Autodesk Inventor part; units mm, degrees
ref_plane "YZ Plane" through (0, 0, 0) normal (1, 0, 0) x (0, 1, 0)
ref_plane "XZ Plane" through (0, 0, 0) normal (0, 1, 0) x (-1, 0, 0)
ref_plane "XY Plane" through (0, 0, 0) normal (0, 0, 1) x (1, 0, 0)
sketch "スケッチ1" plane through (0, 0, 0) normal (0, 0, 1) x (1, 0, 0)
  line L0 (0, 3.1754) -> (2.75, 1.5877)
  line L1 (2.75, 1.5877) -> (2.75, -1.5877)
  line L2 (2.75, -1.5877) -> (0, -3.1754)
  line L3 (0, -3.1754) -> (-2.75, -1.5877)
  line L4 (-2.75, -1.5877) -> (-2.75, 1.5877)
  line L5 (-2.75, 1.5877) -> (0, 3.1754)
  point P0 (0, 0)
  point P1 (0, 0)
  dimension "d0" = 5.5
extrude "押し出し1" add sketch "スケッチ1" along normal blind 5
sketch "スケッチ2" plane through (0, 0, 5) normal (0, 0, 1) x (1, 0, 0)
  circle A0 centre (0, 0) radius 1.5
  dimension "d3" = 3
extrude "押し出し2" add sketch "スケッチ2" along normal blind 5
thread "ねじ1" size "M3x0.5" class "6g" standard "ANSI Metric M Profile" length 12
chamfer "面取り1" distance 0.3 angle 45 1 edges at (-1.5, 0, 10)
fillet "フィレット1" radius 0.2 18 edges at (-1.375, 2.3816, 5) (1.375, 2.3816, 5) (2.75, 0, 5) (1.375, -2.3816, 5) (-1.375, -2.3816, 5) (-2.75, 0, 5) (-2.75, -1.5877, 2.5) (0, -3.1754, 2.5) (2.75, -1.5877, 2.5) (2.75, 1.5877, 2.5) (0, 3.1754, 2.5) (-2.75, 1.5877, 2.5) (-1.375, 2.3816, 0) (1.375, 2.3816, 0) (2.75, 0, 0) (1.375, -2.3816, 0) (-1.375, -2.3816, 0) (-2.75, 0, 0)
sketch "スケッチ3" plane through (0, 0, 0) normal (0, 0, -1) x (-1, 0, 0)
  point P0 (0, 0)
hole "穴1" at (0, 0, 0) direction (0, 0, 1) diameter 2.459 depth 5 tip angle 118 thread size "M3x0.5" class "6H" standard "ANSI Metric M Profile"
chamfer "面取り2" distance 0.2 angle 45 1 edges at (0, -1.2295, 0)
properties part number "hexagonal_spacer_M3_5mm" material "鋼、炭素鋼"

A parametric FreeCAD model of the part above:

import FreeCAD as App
import Part
import Sketcher

V = App.Vector
Q = App.Units.Quantity


def edges_at(feature, points):
    """Names of the edges that pass closest to the given points."""
    edges = feature.Shape.Edges
    near = lambda p: min(range(len(edges)), key=lambda i: edges[i].distToShape(Part.Vertex(*p))[0])
    return sorted({f"Edge{near(p) + 1}" for p in points})

doc = App.newDocument("Part")
body = doc.addObject("PartDesign::Body", "Body")

sketch1 = doc.addObject("Sketcher::SketchObject", "Sketch")
body.addObject(sketch1)
sketch1.AttachmentSupport = (doc.XY_Plane, [""])
sketch1.MapMode = "FlatFace"
sketch1.addGeometry([
    Part.LineSegment(V(2.8, 1.6, 0), V(0, 3.2, 0)),
    Part.LineSegment(V(0, 3.2, 0), V(-2.8, 1.6, 0)),
    Part.LineSegment(V(-2.8, 1.6, 0), V(-2.8, -1.6, 0)),
    Part.LineSegment(V(-2.8, -1.6, 0), V(0, -3.2, 0)),
    Part.LineSegment(V(0, -3.2, 0), V(2.8, -1.6, 0)),
    Part.LineSegment(V(2.8, -1.6, 0), V(2.8, 1.6, 0)),
], False)
sketch1.addConstraint([
    Sketcher.Constraint("Coincident", 0, 2, 1, 1),
    Sketcher.Constraint("Coincident", 1, 2, 2, 1),
    Sketcher.Constraint("Coincident", 2, 2, 3, 1),
    Sketcher.Constraint("Coincident", 3, 2, 4, 1),
    Sketcher.Constraint("Coincident", 4, 2, 5, 1),
    Sketcher.Constraint("Coincident", 5, 2, 0, 1),
    Sketcher.Constraint("Vertical", 2),
    Sketcher.Constraint("Vertical", 5),
    Sketcher.Constraint("Symmetric", 0, 2, 3, 2, -1, 1),
    Sketcher.Constraint("Symmetric", 1, 2, 4, 2, -1, 1),
    Sketcher.Constraint("PointOnObject", 0, 2, -2),
    Sketcher.Constraint("Parallel", 0, 3),
    Sketcher.Constraint("Horizontal", 2, 2, 4, 2),
    Sketcher.Constraint("DistanceX", 2, 2, 4, 2, Q("5.5 mm")),
    Sketcher.Constraint("Angle", 0, Q("150.0002 deg")),
    Sketcher.Constraint("DistanceY", 2, 2, 2, 1, Q("3.1754 mm")),
])
pad1 = doc.addObject("PartDesign::Pad", "Pad")
body.addObject(pad1)
pad1.Profile = sketch1
pad1.Length = 5

sketch2 = doc.addObject("Sketcher::SketchObject", "Sketch001")
body.addObject(sketch2)
sketch2.AttachmentSupport = (doc.XY_Plane, [""])
sketch2.MapMode = "FlatFace"
sketch2.AttachmentOffset = App.Placement(V(0, 0, 5), App.Rotation())
sketch2.addGeometry(Part.Circle(V(0, 0, 0), V(0, 0, 1), 1.5), False)
sketch2.addConstraint([
    Sketcher.Constraint("Coincident", 0, 3, -1, 1),
    Sketcher.Constraint("Diameter", 0, Q("3 mm")),
])
pad2 = doc.addObject("PartDesign::Pad", "Pad001")
body.addObject(pad2)
pad2.Profile = sketch2
pad2.Length = 5
doc.recompute()

chamfer = doc.addObject("PartDesign::Chamfer", "Chamfer")
body.addObject(chamfer)
chamfer.Base = (pad2, edges_at(pad2, [(-1.5, 0, 10)]))
chamfer.Size = 0.3
doc.recompute()

fillet = doc.addObject("PartDesign::Fillet", "Fillet")
body.addObject(fillet)
fillet.Base = (chamfer, edges_at(chamfer, [
    (-1.375, 2.382, 5),
    (1.375, 2.382, 5),
    (2.75, 0, 5),
    (1.375, -2.382, 5),
    (-1.375, -2.382, 5),
    (-2.75, 0, 5),
    (-2.75, -1.588, 2.5),
    (0, -3.175, 2.5),
    (2.75, -1.588, 2.5),
    (2.75, 1.588, 2.5),
    (0, 3.175, 2.5),
    (-2.75, 1.588, 2.5),
    (-1.375, 2.382, 0),
    (1.375, 2.382, 0),
    (2.75, 0, 0),
    (1.375, -2.382, 0),
    (-1.375, -2.382, 0),
    (-2.75, 0, 0),
]))
fillet.Radius = 0.2

sketch3 = doc.addObject("Sketcher::SketchObject", "Sketch002")
body.addObject(sketch3)
sketch3.AttachmentSupport = (doc.XY_Plane, [""])
sketch3.MapMode = "FlatFace"
sketch3.addGeometry(Part.Circle(V(0, 0, 0), V(0, 0, 1), 1.2), False)
sketch3.addConstraint([
    Sketcher.Constraint("Coincident", 0, 3, -1, 1),
    Sketcher.Constraint("Diameter", 0, Q("2.459 mm")),
])
doc.recompute()
hole = doc.addObject("PartDesign::Hole", "Hole")
body.addObject(hole)
hole.Profile = sketch3
hole.ThreadType = "None"
hole.Diameter = 2.459
hole.DepthType = "Dimension"
hole.Depth = 5
hole.DrillPoint = "Angled"
hole.DrillPointAngle = 118
hole.Reversed = True
doc.recompute()

chamfer2 = doc.addObject("PartDesign::Chamfer", "Chamfer001")
body.addObject(chamfer2)
chamfer2.Base = (hole, edges_at(hole, [(0, -1.23, 0)]))
chamfer2.Size = 0.2

doc.recompute()
